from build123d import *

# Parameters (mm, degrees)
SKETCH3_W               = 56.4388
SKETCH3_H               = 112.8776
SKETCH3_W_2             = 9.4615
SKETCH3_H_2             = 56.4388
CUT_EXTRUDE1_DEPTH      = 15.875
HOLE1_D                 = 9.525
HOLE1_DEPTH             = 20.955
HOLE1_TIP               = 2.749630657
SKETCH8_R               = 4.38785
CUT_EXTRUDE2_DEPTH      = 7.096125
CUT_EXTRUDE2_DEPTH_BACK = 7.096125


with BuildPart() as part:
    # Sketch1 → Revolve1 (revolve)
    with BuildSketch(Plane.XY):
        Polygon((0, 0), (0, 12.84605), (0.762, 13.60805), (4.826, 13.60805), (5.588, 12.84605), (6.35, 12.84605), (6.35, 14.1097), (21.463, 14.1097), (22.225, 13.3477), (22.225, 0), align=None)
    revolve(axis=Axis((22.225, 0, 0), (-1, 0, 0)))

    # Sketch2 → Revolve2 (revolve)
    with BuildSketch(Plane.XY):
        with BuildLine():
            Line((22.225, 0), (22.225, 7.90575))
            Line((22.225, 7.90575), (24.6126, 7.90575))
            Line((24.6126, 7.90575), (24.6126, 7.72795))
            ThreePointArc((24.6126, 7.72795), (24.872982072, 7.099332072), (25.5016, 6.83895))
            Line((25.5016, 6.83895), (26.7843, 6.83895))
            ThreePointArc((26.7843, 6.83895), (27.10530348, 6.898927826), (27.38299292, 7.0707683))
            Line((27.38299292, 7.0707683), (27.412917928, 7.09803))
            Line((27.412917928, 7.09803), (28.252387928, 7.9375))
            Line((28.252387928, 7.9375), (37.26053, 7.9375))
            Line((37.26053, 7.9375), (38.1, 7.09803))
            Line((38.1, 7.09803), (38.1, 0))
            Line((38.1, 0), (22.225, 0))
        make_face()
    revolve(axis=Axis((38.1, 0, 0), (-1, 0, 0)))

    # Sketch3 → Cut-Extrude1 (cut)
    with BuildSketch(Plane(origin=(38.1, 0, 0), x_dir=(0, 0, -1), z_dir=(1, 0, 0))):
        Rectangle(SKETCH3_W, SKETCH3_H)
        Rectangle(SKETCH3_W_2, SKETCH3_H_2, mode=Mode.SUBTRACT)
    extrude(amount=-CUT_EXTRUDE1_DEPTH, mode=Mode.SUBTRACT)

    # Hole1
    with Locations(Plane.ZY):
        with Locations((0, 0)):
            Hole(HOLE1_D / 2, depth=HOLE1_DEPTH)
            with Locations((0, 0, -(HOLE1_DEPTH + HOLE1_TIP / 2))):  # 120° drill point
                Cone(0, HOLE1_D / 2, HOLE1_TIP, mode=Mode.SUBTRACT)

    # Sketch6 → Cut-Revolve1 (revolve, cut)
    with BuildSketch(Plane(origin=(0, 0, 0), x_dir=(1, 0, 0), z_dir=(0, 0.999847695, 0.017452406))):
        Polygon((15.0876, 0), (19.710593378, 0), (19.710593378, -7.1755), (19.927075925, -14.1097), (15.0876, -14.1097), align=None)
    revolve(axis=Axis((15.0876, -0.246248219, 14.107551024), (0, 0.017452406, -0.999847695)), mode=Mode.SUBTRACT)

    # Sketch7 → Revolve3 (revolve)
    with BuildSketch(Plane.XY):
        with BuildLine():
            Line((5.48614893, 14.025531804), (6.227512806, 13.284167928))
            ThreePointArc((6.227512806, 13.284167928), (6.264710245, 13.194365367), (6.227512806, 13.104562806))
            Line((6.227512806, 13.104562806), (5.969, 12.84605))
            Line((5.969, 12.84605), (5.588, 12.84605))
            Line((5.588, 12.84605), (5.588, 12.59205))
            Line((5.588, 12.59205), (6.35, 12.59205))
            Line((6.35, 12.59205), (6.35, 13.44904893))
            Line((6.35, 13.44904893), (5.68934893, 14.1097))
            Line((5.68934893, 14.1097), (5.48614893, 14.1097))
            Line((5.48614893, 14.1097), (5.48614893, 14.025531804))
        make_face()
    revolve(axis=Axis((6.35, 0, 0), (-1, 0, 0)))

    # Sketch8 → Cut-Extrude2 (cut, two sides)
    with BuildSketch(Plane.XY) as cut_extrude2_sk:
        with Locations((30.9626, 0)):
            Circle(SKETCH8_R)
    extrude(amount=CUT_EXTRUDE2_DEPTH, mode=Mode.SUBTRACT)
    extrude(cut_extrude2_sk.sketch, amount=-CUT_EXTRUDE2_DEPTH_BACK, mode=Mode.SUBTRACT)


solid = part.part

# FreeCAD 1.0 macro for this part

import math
import FreeCAD as App
import Part
import Sketcher
Q = App.Units.Quantity

doc = App.newDocument("Part")
body = doc.addObject("PartDesign::Body", "Body")

sketch1 = body.newObject("Sketcher::SketchObject", "Sketch")
sketch1.AttachmentSupport = (doc.getObject("XY_Plane"), [""])
sketch1.MapMode = "FlatFace"
sketch1.addGeometry([
    Part.LineSegment(App.Vector(0, 12.8, 0), App.Vector(0, 0, 0)),
    Part.LineSegment(App.Vector(0, 0, 0), App.Vector(22.2, 0, 0)),
    Part.LineSegment(App.Vector(22.2, 0, 0), App.Vector(22.2, 13.3, 0)),
    Part.LineSegment(App.Vector(22.2, 13.3, 0), App.Vector(21.5, 14.1, 0)),
    Part.LineSegment(App.Vector(21.5, 14.1, 0), App.Vector(6.3, 14.1, 0)),
    Part.LineSegment(App.Vector(6.3, 14.1, 0), App.Vector(6.3, 12.8, 0)),
    Part.LineSegment(App.Vector(6.3, 12.8, 0), App.Vector(5.6, 12.8, 0)),
    Part.LineSegment(App.Vector(5.6, 12.8, 0), App.Vector(4.8, 13.6, 0)),
    Part.LineSegment(App.Vector(4.8, 13.6, 0), App.Vector(0.8, 13.6, 0)),
    Part.LineSegment(App.Vector(0.8, 13.6, 0), App.Vector(0, 12.8, 0)),
], False)
sketch1.addConstraint([
    Sketcher.Constraint("Coincident", 0, 2, 1, 1),
    Sketcher.Constraint("Coincident", 1, 2, 2, 1),
    Sketcher.Constraint("Coincident", 2, 2, 3, 1),
    Sketcher.Constraint("Coincident", 3, 2, 4, 1),
    Sketcher.Constraint("Coincident", 4, 2, 5, 1),
    Sketcher.Constraint("Coincident", 5, 2, 6, 1),
    Sketcher.Constraint("Coincident", 6, 2, 7, 1),
    Sketcher.Constraint("Coincident", 7, 2, 8, 1),
    Sketcher.Constraint("Coincident", 8, 2, 9, 1),
    Sketcher.Constraint("Coincident", 9, 2, 0, 1),
    Sketcher.Constraint("Vertical", 0),
    Sketcher.Constraint("Horizontal", 1),
    Sketcher.Constraint("Vertical", 2),
    Sketcher.Constraint("Horizontal", 4),
    Sketcher.Constraint("Vertical", 5),
    Sketcher.Constraint("Horizontal", 6),
    Sketcher.Constraint("Horizontal", 8),
    Sketcher.Constraint("Coincident", 0, 2, -1, 1),
    Sketcher.Constraint("Parallel", 3, 7),
    Sketcher.Constraint("Perpendicular", 7, 9),
    Sketcher.Constraint("Horizontal", 6, 2, 9, 2),
    Sketcher.Constraint("Equal", 3, 7),
    Sketcher.Constraint("Equal", 7, 9),
    Sketcher.Constraint("DistanceX", 6, 2, 6, 1, Q("0.03 in")),
    Sketcher.Constraint("DistanceX", 8, 2, 8, 1, Q("0.16 in")),
    Sketcher.Constraint("DistanceX", 1, 1, 1, 2, Q("0.875 in")),
    Sketcher.Constraint("DistanceX", 4, 2, 4, 1, Q("0.595 in")),
    Sketcher.Constraint("DistanceY", 2, 1, 2, 2, Q("0.5255 in")),
    Sketcher.Constraint("DistanceY", 0, 2, 0, 1, Q("12.84605 mm")),
])
revolution = body.newObject("PartDesign::Revolution", "Revolution")
revolution.Profile = sketch1
revolution.ReferenceAxis = (sketch1, ["H_Axis"])
revolution.Angle = 360

sketch2 = body.newObject("Sketcher::SketchObject", "Sketch001")
sketch2.AttachmentSupport = (doc.getObject("XY_Plane"), [""])
sketch2.MapMode = "FlatFace"
sketch2.addGeometry([
    Part.LineSegment(App.Vector(22.225, 7.906, 0), App.Vector(22.225, 0, 0)),
    Part.LineSegment(App.Vector(22.225, 0, 0), App.Vector(38.1, 0, 0)),
    Part.LineSegment(App.Vector(38.1, 0, 0), App.Vector(38.1, 7.098, 0)),
    Part.LineSegment(App.Vector(38.1, 7.098, 0), App.Vector(37.261, 7.938, 0)),
    Part.LineSegment(App.Vector(37.261, 7.938, 0), App.Vector(28.252, 7.938, 0)),
    Part.LineSegment(App.Vector(28.252, 7.938, 0), App.Vector(27.413, 7.098, 0)),
    Part.LineSegment(App.Vector(27.413, 7.098, 0), App.Vector(27.383, 7.071, 0)),
    Part.ArcOfCircle(Part.Circle(App.Vector(26.784, 7.728, 0), App.Vector(0, 0, 1), 0.889), math.radians(-90), math.radians(-48)),
    Part.LineSegment(App.Vector(26.784, 6.839, 0), App.Vector(25.502, 6.839, 0)),
    Part.ArcOfCircle(Part.Circle(App.Vector(25.502, 7.728, 0), App.Vector(0, 0, 1), 0.889), math.radians(-180), math.radians(-90)),
    Part.LineSegment(App.Vector(24.613, 7.728, 0), App.Vector(24.613, 7.906, 0)),
    Part.LineSegment(App.Vector(24.613, 7.906, 0), App.Vector(22.225, 7.906, 0)),
], False)
sketch2.addConstraint([
    Sketcher.Constraint("Coincident", 0, 2, 1, 1),
    Sketcher.Constraint("Coincident", 1, 2, 2, 1),
    Sketcher.Constraint("Coincident", 2, 2, 3, 1),
    Sketcher.Constraint("Coincident", 3, 2, 4, 1),
    Sketcher.Constraint("Coincident", 4, 2, 5, 1),
    Sketcher.Constraint("Coincident", 5, 2, 6, 1),
    Sketcher.Constraint("Tangent", 6, 2, 7, 2),
    Sketcher.Constraint("Tangent", 7, 1, 8, 1),
    Sketcher.Constraint("Tangent", 8, 2, 9, 2),
    Sketcher.Constraint("Tangent", 9, 1, 10, 1),
    Sketcher.Constraint("Coincident", 10, 2, 11, 1),
    Sketcher.Constraint("Coincident", 11, 2, 0, 1),
    Sketcher.Constraint("Vertical", 0),
    Sketcher.Constraint("Horizontal", 1),
    Sketcher.Constraint("Vertical", 2),
    Sketcher.Constraint("Horizontal", 4),
    Sketcher.Constraint("Horizontal", 8),
    Sketcher.Constraint("Vertical", 10),
    Sketcher.Constraint("Horizontal", 11),
    Sketcher.Constraint("Equal", 7, 9),
    Sketcher.Constraint("PointOnObject", 0, 2, -1),
    Sketcher.Constraint("Perpendicular", 3, 5),
    Sketcher.Constraint("Horizontal", 2, 2, 5, 2),
    Sketcher.Constraint("Equal", 3, 5),
    Sketcher.Constraint("Radius", 7, Q("0.035 in")),
    Sketcher.Constraint("DistanceX", -1, 1, 1, 2, Q("1.5 in")),
    Sketcher.Constraint("DistanceX", 1, 1, 1, 2, Q("0.625 in")),
    Sketcher.Constraint("DistanceX", 11, 2, 11, 1, Q("0.094 in")),
    Sketcher.Constraint("DistanceY", 10, 1, 10, 2, Q("0.007 in")),
    Sketcher.Constraint("DistanceX", 8, 2, 8, 1, Q("0.0505 in")),
    Sketcher.Constraint("DistanceY", -1, 1, 3, 2, Q("0.3125 in")),
    Sketcher.Constraint("DistanceY", 2, 2, 7, 3, Q("0.0248 in")),
    Sketcher.Constraint("DistanceY", 0, 2, 0, 1, Q("7.90575 mm")),
    Sketcher.Constraint("Distance", 6, Q("0.040481 mm")),
])
revolution2 = body.newObject("PartDesign::Revolution", "Revolution001")
revolution2.Profile = sketch2
revolution2.ReferenceAxis = (sketch2, ["H_Axis"])
revolution2.Angle = 360

sketch3 = body.newObject("Sketcher::SketchObject", "Sketch002")
sketch3.AttachmentSupport = (doc.getObject("YZ_Plane"), [""])
sketch3.MapMode = "FlatFace"
sketch3.AttachmentOffset = App.Placement(App.Vector(0, 0, 1.5 * 25.4), App.Rotation())
sketch3.addGeometry([
    Part.LineSegment(App.Vector(56, 28, 0), App.Vector(-56, 28, 0)),
    Part.LineSegment(App.Vector(-56, 28, 0), App.Vector(-56, -28, 0)),
    Part.LineSegment(App.Vector(-56, -28, 0), App.Vector(56, -28, 0)),
    Part.LineSegment(App.Vector(56, -28, 0), App.Vector(56, 28, 0)),
    Part.LineSegment(App.Vector(-28, -5, 0), App.Vector(-28, 5, 0)),
    Part.LineSegment(App.Vector(-28, 5, 0), App.Vector(28, 5, 0)),
    Part.LineSegment(App.Vector(28, 5, 0), App.Vector(28, -5, 0)),
    Part.LineSegment(App.Vector(28, -5, 0), App.Vector(-28, -5, 0)),
], False)
sketch3.addConstraint([
    Sketcher.Constraint("Coincident", 0, 2, 1, 1),
    Sketcher.Constraint("Coincident", 1, 2, 2, 1),
    Sketcher.Constraint("Coincident", 2, 2, 3, 1),
    Sketcher.Constraint("Coincident", 3, 2, 0, 1),
    Sketcher.Constraint("Coincident", 4, 2, 5, 1),
    Sketcher.Constraint("Coincident", 5, 2, 6, 1),
    Sketcher.Constraint("Coincident", 6, 2, 7, 1),
    Sketcher.Constraint("Coincident", 7, 2, 4, 1),
    Sketcher.Constraint("Horizontal", 0),
    Sketcher.Constraint("Vertical", 1),
    Sketcher.Constraint("Horizontal", 2),
    Sketcher.Constraint("Vertical", 3),
    Sketcher.Constraint("Vertical", 4),
    Sketcher.Constraint("Horizontal", 5),
    Sketcher.Constraint("Vertical", 6),
    Sketcher.Constraint("Horizontal", 7),
    Sketcher.Constraint("Symmetric", 0, 2, 2, 2, -1, 1),
    Sketcher.Constraint("Symmetric", 4, 2, 6, 2, -1, 1),
    Sketcher.Constraint("Equal", 7, 1),
    Sketcher.Constraint("DistanceX", 0, 2, 0, 1, Q("4.444 in")),
    Sketcher.Constraint("DistanceX", 5, 1, 5, 2, Q("2.222 in")),
    Sketcher.Constraint("DistanceY", 4, 1, 4, 2, Q("0.3725 in")),
])
pocket1 = body.newObject("PartDesign::Pocket", "Pocket")
pocket1.Profile = sketch3
pocket1.Length = Q("0.625 in")

sketch4 = body.newObject("Sketcher::SketchObject", "Sketch003")
sketch4.AttachmentSupport = (doc.getObject("YZ_Plane"), [""])
sketch4.MapMode = "FlatFace"
sketch4.addGeometry(Part.Circle(App.Vector(0, 0, 0), App.Vector(0, 0, 1), 4.8), False)
sketch4.addConstraint([
    Sketcher.Constraint("Coincident", 0, 3, -1, 1),
    Sketcher.Constraint("Diameter", 0, Q("0.375 in")),
])
doc.recompute()
hole = body.newObject("PartDesign::Hole", "Hole")
hole.Profile = sketch4
hole.ThreadType = "None"
hole.Diameter = Q("0.375 in")
hole.DepthType = "Dimension"
hole.Depth = Q("0.825 in")
hole.DrillPoint = "Angled"
hole.DrillPointAngle = 120
hole.Reversed = True

sketch5 = body.newObject("Sketcher::SketchObject", "Sketch004")
sketch5.Placement = App.Placement(App.Vector(0, 0, 0), App.Rotation(App.Vector(1, 0, 0), App.Vector(0, 0.017452406, -0.999847695), App.Vector(0, 0.999847695, 0.017452406), "ZXY"))
sketch5.addGeometry([
    Part.LineSegment(App.Vector(19.7, 0, 0), App.Vector(15.1, 0, 0)),
    Part.LineSegment(App.Vector(15.1, 0, 0), App.Vector(15.1, -14.1, 0)),
    Part.LineSegment(App.Vector(15.1, -14.1, 0), App.Vector(19.9, -14.1, 0)),
    Part.LineSegment(App.Vector(19.9, -14.1, 0), App.Vector(19.7, -7.2, 0)),
    Part.LineSegment(App.Vector(19.7, -7.2, 0), App.Vector(19.7, 0, 0)),
], False)
sketch5.addGeometry(Part.LineSegment(App.Vector(15.1, -14.1, 0), App.Vector(15.1, 0, 0)), True)
sketch5.addConstraint([
    Sketcher.Constraint("Coincident", 0, 2, 1, 1),
    Sketcher.Constraint("Coincident", 1, 2, 2, 1),
    Sketcher.Constraint("Coincident", 2, 2, 3, 1),
    Sketcher.Constraint("Coincident", 3, 2, 4, 1),
    Sketcher.Constraint("Coincident", 4, 2, 0, 1),
    Sketcher.Constraint("Horizontal", 0),
    Sketcher.Constraint("Vertical", 1),
    Sketcher.Constraint("Horizontal", 2),
    Sketcher.Constraint("Vertical", 4),
    Sketcher.Constraint("Vertical", 5),
    Sketcher.Constraint("Coincident", 5, 1, 1, 2),
    Sketcher.Constraint("PointOnObject", 0, 2, -1),
    Sketcher.Constraint("PointOnObject", 5, 2, -1),
    Sketcher.Constraint("DistanceY", 1, 2, 1, 1, Q("0.5555 in")),
    Sketcher.Constraint("DistanceY", 4, 1, 4, 2, Q("0.2825 in")),
    Sketcher.Constraint("DistanceX", -1, 1, 0, 2, Q("0.594 in")),
    Sketcher.Constraint("Distance", 3, Q("6.937578 mm")),
    Sketcher.Constraint("DistanceX", 0, 2, 0, 1, Q("4.622993 mm")),
])
groove = body.newObject("PartDesign::Groove", "Groove")
groove.Profile = sketch5
groove.ReferenceAxis = (sketch5, ["Axis0"])
groove.Angle = 360

sketch6 = body.newObject("Sketcher::SketchObject", "Sketch005")
sketch6.AttachmentSupport = (doc.getObject("XY_Plane"), [""])
sketch6.MapMode = "FlatFace"
sketch6.addGeometry([
    Part.LineSegment(App.Vector(5.49, 14.03, 0), App.Vector(6.23, 13.28, 0)),
    Part.ArcOfCircle(Part.Circle(App.Vector(6.14, 13.19, 0), App.Vector(0, 0, 1), 0.13), math.radians(-45), math.radians(45)),
    Part.LineSegment(App.Vector(6.23, 13.1, 0), App.Vector(5.97, 12.85, 0)),
    Part.LineSegment(App.Vector(5.97, 12.85, 0), App.Vector(5.59, 12.85, 0)),
    Part.LineSegment(App.Vector(5.59, 12.85, 0), App.Vector(5.59, 12.59, 0)),
    Part.LineSegment(App.Vector(5.59, 12.59, 0), App.Vector(6.35, 12.59, 0)),
    Part.LineSegment(App.Vector(6.35, 12.59, 0), App.Vector(6.35, 13.45, 0)),
    Part.LineSegment(App.Vector(6.35, 13.45, 0), App.Vector(5.69, 14.11, 0)),
    Part.LineSegment(App.Vector(5.69, 14.11, 0), App.Vector(5.49, 14.11, 0)),
    Part.LineSegment(App.Vector(5.49, 14.11, 0), App.Vector(5.49, 14.03, 0)),
], False)
sketch6.addConstraint([
    Sketcher.Constraint("Tangent", 0, 2, 1, 2),
    Sketcher.Constraint("Tangent", 1, 1, 2, 1),
    Sketcher.Constraint("Coincident", 2, 2, 3, 1),
    Sketcher.Constraint("Coincident", 3, 2, 4, 1),
    Sketcher.Constraint("Coincident", 4, 2, 5, 1),
    Sketcher.Constraint("Coincident", 5, 2, 6, 1),
    Sketcher.Constraint("Coincident", 6, 2, 7, 1),
    Sketcher.Constraint("Coincident", 7, 2, 8, 1),
    Sketcher.Constraint("Coincident", 8, 2, 9, 1),
    Sketcher.Constraint("Coincident", 9, 2, 0, 1),
    Sketcher.Constraint("Horizontal", 3),
    Sketcher.Constraint("Vertical", 4),
    Sketcher.Constraint("Horizontal", 5),
    Sketcher.Constraint("Vertical", 6),
    Sketcher.Constraint("Horizontal", 8),
    Sketcher.Constraint("Vertical", 9),
    Sketcher.Constraint("Perpendicular", 0, 2),
    Sketcher.Constraint("Perpendicular", 2, 7),
    Sketcher.Constraint("Vertical", 0, 2, 1, 1),
    Sketcher.Constraint("Radius", 1, Q("0.005 in")),
    Sketcher.Constraint("DistanceX", 5, 1, 5, 2, Q("0.03 in")),
    Sketcher.Constraint("DistanceY", 4, 2, 4, 1, Q("0.01 in")),
    Sketcher.Constraint("DistanceX", 3, 2, 3, 1, Q("0.015 in")),
    Sketcher.Constraint("DistanceX", 8, 2, 8, 1, Q("0.008 in")),
    Sketcher.Constraint("DistanceX", -1, 1, 3, 2, Q("0.22 in")),
    Sketcher.Constraint("DistanceY", 6, 1, 6, 2, Q("0.856999 mm")),
    Sketcher.Constraint("DistanceY", -1, 1, 7, 2, Q("0.5555 in")),
    Sketcher.Constraint("Distance", 7, Q("0.934302 mm")),
    Sketcher.Constraint("DistanceY", 9, 2, 9, 1, Q("0.084168 mm")),
])
revolution3 = body.newObject("PartDesign::Revolution", "Revolution002")
revolution3.Profile = sketch6
revolution3.ReferenceAxis = (sketch6, ["H_Axis"])
revolution3.Angle = 360

sketch7 = body.newObject("Sketcher::SketchObject", "Sketch006")
sketch7.AttachmentSupport = (doc.getObject("XY_Plane"), [""])
sketch7.MapMode = "FlatFace"
sketch7.addGeometry(Part.Circle(App.Vector(31, 0, 0), App.Vector(0, 0, 1), 4.4), False)
sketch7.addConstraint([
    Sketcher.Constraint("PointOnObject", 0, 3, -1),
    Sketcher.Constraint("Diameter", 0, Q("0.3455 in")),
    Sketcher.Constraint("DistanceX", -1, 1, 0, 3, Q("1.219 in")),
])
pocket2 = body.newObject("PartDesign::Pocket", "Pocket001")
pocket2.Profile = sketch7
pocket2.Type = "ThroughAll"
pocket2.Midplane = True

doc.recompute()
